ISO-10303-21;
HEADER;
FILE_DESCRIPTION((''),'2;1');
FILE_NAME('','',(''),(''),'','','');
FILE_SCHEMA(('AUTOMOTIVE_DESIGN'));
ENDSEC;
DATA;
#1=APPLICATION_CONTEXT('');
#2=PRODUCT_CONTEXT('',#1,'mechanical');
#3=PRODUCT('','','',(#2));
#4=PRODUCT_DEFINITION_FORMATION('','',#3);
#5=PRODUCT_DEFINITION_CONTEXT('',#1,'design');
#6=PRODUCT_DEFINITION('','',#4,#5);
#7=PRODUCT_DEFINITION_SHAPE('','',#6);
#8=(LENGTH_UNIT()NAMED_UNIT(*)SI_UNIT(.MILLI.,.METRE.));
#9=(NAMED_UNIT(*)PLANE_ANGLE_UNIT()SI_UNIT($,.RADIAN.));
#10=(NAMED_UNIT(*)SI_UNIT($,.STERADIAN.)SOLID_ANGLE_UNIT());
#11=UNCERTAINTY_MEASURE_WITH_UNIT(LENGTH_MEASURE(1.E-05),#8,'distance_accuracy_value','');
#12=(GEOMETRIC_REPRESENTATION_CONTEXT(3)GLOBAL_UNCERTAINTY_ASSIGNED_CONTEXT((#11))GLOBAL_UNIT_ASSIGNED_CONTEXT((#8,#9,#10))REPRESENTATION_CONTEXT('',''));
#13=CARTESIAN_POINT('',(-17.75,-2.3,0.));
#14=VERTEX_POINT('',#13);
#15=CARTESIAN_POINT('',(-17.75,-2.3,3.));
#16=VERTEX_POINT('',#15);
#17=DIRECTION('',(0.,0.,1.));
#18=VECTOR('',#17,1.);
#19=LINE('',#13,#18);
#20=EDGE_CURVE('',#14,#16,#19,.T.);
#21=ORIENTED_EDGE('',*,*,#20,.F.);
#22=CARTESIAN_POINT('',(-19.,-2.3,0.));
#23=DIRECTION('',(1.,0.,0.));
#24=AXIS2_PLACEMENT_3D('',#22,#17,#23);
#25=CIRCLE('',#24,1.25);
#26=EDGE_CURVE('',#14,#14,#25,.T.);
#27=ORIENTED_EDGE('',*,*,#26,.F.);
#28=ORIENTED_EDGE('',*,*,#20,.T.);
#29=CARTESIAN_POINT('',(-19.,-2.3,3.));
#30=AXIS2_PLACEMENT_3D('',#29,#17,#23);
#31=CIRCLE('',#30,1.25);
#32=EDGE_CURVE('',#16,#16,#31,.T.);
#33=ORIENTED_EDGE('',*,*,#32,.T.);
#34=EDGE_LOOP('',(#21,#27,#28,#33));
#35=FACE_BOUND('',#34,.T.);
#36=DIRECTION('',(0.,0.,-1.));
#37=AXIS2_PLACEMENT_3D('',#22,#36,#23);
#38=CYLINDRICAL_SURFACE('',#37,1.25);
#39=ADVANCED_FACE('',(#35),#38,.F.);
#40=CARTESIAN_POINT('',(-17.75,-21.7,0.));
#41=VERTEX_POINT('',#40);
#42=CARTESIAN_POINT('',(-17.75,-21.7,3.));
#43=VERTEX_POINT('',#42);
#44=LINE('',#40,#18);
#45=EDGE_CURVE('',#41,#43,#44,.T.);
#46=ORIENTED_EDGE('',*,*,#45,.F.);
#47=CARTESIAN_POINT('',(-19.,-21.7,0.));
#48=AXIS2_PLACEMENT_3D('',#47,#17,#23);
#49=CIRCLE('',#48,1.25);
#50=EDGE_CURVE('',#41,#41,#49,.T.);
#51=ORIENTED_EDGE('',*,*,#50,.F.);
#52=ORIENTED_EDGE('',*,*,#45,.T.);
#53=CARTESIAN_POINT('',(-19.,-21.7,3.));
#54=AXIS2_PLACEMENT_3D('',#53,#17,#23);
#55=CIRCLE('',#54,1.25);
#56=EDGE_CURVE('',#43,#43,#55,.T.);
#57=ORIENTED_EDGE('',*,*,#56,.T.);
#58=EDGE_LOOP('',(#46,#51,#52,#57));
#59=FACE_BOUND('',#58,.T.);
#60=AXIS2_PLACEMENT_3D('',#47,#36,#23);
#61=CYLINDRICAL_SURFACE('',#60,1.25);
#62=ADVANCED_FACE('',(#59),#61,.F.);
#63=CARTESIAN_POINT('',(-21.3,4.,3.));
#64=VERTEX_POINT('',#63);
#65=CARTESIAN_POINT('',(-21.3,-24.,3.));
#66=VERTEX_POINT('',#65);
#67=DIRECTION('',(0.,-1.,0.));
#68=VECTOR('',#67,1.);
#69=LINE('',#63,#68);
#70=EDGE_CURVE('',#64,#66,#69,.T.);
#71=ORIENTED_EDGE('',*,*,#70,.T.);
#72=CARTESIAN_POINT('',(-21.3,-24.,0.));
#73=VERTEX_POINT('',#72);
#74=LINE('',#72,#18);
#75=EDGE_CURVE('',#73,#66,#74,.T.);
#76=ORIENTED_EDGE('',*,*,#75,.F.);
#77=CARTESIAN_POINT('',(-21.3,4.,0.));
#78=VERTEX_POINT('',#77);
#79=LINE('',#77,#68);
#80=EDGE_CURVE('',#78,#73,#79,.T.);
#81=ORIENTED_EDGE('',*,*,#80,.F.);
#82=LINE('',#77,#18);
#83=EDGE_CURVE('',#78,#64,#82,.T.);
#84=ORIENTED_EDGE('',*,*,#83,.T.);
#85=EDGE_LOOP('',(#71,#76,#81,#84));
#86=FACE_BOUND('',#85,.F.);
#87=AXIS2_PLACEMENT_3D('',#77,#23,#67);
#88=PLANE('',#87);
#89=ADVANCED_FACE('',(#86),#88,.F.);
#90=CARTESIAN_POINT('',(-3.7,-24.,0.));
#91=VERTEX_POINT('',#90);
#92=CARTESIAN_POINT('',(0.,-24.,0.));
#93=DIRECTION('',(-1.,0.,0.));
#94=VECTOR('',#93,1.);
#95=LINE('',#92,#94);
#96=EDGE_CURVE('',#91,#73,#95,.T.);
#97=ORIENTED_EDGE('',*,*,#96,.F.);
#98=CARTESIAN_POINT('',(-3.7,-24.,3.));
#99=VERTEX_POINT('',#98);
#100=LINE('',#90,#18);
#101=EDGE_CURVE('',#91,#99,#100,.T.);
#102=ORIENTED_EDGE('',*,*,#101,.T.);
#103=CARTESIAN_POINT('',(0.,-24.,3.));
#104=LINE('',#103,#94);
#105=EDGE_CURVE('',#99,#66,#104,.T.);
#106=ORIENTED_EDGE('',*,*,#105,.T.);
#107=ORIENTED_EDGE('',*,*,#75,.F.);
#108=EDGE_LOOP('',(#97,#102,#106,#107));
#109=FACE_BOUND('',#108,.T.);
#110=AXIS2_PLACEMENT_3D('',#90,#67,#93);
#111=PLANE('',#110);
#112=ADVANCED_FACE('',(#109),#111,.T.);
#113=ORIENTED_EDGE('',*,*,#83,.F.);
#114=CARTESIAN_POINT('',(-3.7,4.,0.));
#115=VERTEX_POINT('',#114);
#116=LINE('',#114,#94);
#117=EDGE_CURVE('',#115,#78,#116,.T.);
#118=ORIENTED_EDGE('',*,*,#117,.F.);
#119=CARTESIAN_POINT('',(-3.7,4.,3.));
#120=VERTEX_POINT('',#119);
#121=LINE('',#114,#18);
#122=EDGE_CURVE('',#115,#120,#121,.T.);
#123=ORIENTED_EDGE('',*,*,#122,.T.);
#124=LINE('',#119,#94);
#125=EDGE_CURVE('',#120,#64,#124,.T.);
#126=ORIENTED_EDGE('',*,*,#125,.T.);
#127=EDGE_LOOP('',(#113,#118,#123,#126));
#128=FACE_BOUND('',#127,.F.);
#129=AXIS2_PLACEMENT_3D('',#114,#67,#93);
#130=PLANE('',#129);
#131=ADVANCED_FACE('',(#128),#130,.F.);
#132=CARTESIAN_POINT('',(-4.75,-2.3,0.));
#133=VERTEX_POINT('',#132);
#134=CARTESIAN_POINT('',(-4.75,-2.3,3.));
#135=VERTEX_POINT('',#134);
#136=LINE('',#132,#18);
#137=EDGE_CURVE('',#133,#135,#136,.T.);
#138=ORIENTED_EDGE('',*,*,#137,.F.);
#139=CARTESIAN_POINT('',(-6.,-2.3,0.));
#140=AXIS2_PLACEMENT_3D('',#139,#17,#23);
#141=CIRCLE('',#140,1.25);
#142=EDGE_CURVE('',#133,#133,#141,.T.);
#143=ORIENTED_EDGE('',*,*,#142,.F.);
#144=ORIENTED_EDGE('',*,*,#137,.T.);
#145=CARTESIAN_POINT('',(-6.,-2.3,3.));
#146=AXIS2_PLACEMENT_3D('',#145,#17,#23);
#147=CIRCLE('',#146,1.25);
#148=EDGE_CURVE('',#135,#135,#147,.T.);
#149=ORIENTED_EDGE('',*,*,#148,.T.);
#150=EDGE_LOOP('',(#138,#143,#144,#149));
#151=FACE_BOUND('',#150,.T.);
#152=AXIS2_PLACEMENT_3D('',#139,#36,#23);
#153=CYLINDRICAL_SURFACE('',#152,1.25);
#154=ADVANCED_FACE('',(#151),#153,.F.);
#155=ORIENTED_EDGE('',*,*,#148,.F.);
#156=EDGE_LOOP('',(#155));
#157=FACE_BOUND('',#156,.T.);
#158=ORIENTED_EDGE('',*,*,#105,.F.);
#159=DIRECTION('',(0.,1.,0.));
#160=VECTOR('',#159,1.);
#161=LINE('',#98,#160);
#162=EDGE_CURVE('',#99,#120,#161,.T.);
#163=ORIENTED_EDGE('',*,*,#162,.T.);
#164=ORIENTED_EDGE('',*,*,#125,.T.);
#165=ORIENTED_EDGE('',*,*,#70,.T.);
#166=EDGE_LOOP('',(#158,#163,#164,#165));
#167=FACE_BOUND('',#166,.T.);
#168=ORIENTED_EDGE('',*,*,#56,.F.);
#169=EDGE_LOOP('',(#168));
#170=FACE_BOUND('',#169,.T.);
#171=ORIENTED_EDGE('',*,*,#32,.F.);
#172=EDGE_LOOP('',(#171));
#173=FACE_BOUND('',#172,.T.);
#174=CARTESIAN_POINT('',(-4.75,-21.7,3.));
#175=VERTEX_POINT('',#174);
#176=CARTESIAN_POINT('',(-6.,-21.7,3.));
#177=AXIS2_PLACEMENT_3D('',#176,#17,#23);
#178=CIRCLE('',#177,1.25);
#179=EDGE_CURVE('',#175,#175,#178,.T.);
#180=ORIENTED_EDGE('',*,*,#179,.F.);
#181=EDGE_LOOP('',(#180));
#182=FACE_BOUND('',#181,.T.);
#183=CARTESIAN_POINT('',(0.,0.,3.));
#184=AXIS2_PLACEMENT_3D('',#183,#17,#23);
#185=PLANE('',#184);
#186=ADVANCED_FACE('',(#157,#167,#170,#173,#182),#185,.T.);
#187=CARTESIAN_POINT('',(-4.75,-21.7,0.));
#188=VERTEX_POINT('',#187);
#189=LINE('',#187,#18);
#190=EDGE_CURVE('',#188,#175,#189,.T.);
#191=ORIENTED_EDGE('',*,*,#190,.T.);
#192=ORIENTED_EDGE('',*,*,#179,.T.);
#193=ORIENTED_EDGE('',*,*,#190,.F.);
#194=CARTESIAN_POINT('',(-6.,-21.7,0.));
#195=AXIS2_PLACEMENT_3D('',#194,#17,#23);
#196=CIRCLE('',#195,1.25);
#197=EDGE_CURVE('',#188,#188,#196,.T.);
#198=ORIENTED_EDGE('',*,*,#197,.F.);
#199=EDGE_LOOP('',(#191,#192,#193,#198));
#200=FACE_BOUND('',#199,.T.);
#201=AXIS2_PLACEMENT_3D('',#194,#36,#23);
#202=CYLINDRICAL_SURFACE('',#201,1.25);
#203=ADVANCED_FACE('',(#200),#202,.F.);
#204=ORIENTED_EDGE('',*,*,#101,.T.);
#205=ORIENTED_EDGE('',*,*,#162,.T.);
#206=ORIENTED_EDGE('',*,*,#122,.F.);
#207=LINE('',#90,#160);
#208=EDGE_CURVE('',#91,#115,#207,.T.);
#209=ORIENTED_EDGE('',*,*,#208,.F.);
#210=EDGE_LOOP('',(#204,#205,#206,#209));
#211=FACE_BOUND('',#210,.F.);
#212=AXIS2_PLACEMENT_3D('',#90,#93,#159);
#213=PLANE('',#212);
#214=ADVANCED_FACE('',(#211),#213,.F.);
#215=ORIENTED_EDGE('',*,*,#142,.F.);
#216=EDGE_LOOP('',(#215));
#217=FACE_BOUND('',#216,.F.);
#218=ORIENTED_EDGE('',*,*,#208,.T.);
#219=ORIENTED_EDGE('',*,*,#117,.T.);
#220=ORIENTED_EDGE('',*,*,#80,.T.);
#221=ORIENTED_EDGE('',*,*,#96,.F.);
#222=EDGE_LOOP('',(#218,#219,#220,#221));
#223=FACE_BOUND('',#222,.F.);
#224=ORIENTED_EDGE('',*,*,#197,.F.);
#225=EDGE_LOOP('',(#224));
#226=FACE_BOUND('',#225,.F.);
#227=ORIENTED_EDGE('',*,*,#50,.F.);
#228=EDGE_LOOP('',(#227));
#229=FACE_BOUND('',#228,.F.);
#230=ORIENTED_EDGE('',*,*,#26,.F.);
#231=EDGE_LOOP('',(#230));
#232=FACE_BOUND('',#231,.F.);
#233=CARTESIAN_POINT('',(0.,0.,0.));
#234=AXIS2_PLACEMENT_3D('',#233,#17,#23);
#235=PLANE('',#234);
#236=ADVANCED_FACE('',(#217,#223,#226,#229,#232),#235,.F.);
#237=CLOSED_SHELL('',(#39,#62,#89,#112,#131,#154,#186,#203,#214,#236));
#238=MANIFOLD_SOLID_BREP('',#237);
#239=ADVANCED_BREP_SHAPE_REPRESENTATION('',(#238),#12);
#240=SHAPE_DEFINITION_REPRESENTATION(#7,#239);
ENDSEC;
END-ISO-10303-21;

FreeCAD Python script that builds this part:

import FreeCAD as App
import Part
import Sketcher
from FreeCAD import Vector


def add_polygon(sketch, points):
    """Adds a closed chain of lines whose ends are joined by coincident constraints."""
    first, n = sketch.GeometryCount, len(points)
    for a, b in zip(points, points[1:] + points[:1]):
        sketch.addGeometry(Part.LineSegment(App.Vector(*a, 0), App.Vector(*b, 0)), False)
    for i in range(n):
        sketch.addConstraint(Sketcher.Constraint("Coincident", first + i, 2, first + (i + 1) % n, 1))

doc = App.newDocument("Part")
body = doc.addObject("PartDesign::Body", "Body")

sketch1 = body.newObject("Sketcher::SketchObject", "Sketch")
sketch1.AttachmentSupport = (doc.getObject("XY_Plane"), [""])
sketch1.MapMode = "FlatFace"
add_polygon(sketch1, [(-21.3, -24), (-3.7, -24), (-3.7, 4), (-21.3, 4)])
sketch1.addGeometry(Part.Circle(Vector(-19, -21.7, 0), Vector(0, 0, 1), 1.2), False)
sketch1.addGeometry(Part.Circle(Vector(-6, -21.7, 0), Vector(0, 0, 1), 1.2), False)
sketch1.addGeometry(Part.Circle(Vector(-19, -2.3, 0), Vector(0, 0, 1), 1.2), False)
sketch1.addGeometry(Part.Circle(Vector(-6, -2.3, 0), Vector(0, 0, 1), 1.2), False)
sketch1.addConstraint(Sketcher.Constraint("Horizontal", 0))
sketch1.addConstraint(Sketcher.Constraint("Vertical", 1))
sketch1.addConstraint(Sketcher.Constraint("Horizontal", 2))
sketch1.addConstraint(Sketcher.Constraint("Vertical", 3))
sketch1.addConstraint(Sketcher.Constraint("Equal", 4, 5))
sketch1.addConstraint(Sketcher.Constraint("Equal", 5, 6))
sketch1.addConstraint(Sketcher.Constraint("Equal", 6, 7))
sketch1.addConstraint(Sketcher.Constraint("Horizontal", 4, 3, 5, 3))
sketch1.addConstraint(Sketcher.Constraint("Horizontal", 6, 3, 7, 3))
sketch1.addConstraint(Sketcher.Constraint("Vertical", 4, 3, 6, 3))
sketch1.addConstraint(Sketcher.Constraint("Vertical", 5, 3, 7, 3))
sketch1.addConstraint(Sketcher.Constraint("DistanceY", 1, 1, 1, 2, 28.0))
sketch1.addConstraint(Sketcher.Constraint("Diameter", 4, 2.5))
sketch1.addConstraint(Sketcher.Constraint("DistanceX", 0, 1, 0, 2, 17.6))
sketch1.addConstraint(Sketcher.Constraint("DistanceX", 4, 3, -1, 1, 19.0))
sketch1.addConstraint(Sketcher.Constraint("DistanceX", 5, 3, -1, 1, 6.0))
sketch1.addConstraint(Sketcher.Constraint("DistanceY", 0, 2, -1, 1, 24.0))
sketch1.addConstraint(Sketcher.Constraint("DistanceY", 4, 3, -1, 1, 21.7))
sketch1.addConstraint(Sketcher.Constraint("DistanceY", 6, 3, -1, 1, 2.3))
sketch1.addConstraint(Sketcher.Constraint("DistanceX", 0, 2, -1, 1, 3.7))
pad1 = body.newObject("PartDesign::Pad", "Pad")
pad1.Profile = sketch1
pad1.Length = 3

doc.recompute()
